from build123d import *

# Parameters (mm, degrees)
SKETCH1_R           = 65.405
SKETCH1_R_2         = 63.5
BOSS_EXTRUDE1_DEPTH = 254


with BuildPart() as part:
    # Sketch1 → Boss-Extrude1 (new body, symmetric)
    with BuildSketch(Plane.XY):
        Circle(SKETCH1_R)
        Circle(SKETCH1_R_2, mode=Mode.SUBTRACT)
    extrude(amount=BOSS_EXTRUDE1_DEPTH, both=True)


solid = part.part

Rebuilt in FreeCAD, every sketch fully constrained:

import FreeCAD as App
import Part
import Sketcher

V = App.Vector
Q = App.Units.Quantity

doc = App.newDocument("Part")
body = doc.addObject("PartDesign::Body", "Body")

# Sketch on XY plane
sketch1 = body.newObject("Sketcher::SketchObject", "Sketch")
sketch1.AttachmentSupport = (doc.getObject("XY_Plane"), [""])
sketch1.MapMode = "FlatFace"
sketch1.addGeometry(Part.Circle(V(0, 0, 0), V(0, 0, 1), 65), False)
sketch1.addGeometry(Part.Circle(V(0, 0, 0), V(0, 0, 1), 64), False)
sketch1.addConstraint(Sketcher.Constraint("Coincident", 0, 3, -1, 1))
sketch1.addConstraint(Sketcher.Constraint("Coincident", 1, 3, -1, 1))
sketch1.addConstraint(Sketcher.Constraint("Diameter", 1, Q("5 in")))
sketch1.addConstraint(Sketcher.Constraint("Diameter", 0, Q("5.15 in")))
pad1 = body.newObject("PartDesign::Pad", "Pad")
pad1.Profile = sketch1
pad1.Length = Q("20 in")
pad1.Midplane = True

doc.recompute()
